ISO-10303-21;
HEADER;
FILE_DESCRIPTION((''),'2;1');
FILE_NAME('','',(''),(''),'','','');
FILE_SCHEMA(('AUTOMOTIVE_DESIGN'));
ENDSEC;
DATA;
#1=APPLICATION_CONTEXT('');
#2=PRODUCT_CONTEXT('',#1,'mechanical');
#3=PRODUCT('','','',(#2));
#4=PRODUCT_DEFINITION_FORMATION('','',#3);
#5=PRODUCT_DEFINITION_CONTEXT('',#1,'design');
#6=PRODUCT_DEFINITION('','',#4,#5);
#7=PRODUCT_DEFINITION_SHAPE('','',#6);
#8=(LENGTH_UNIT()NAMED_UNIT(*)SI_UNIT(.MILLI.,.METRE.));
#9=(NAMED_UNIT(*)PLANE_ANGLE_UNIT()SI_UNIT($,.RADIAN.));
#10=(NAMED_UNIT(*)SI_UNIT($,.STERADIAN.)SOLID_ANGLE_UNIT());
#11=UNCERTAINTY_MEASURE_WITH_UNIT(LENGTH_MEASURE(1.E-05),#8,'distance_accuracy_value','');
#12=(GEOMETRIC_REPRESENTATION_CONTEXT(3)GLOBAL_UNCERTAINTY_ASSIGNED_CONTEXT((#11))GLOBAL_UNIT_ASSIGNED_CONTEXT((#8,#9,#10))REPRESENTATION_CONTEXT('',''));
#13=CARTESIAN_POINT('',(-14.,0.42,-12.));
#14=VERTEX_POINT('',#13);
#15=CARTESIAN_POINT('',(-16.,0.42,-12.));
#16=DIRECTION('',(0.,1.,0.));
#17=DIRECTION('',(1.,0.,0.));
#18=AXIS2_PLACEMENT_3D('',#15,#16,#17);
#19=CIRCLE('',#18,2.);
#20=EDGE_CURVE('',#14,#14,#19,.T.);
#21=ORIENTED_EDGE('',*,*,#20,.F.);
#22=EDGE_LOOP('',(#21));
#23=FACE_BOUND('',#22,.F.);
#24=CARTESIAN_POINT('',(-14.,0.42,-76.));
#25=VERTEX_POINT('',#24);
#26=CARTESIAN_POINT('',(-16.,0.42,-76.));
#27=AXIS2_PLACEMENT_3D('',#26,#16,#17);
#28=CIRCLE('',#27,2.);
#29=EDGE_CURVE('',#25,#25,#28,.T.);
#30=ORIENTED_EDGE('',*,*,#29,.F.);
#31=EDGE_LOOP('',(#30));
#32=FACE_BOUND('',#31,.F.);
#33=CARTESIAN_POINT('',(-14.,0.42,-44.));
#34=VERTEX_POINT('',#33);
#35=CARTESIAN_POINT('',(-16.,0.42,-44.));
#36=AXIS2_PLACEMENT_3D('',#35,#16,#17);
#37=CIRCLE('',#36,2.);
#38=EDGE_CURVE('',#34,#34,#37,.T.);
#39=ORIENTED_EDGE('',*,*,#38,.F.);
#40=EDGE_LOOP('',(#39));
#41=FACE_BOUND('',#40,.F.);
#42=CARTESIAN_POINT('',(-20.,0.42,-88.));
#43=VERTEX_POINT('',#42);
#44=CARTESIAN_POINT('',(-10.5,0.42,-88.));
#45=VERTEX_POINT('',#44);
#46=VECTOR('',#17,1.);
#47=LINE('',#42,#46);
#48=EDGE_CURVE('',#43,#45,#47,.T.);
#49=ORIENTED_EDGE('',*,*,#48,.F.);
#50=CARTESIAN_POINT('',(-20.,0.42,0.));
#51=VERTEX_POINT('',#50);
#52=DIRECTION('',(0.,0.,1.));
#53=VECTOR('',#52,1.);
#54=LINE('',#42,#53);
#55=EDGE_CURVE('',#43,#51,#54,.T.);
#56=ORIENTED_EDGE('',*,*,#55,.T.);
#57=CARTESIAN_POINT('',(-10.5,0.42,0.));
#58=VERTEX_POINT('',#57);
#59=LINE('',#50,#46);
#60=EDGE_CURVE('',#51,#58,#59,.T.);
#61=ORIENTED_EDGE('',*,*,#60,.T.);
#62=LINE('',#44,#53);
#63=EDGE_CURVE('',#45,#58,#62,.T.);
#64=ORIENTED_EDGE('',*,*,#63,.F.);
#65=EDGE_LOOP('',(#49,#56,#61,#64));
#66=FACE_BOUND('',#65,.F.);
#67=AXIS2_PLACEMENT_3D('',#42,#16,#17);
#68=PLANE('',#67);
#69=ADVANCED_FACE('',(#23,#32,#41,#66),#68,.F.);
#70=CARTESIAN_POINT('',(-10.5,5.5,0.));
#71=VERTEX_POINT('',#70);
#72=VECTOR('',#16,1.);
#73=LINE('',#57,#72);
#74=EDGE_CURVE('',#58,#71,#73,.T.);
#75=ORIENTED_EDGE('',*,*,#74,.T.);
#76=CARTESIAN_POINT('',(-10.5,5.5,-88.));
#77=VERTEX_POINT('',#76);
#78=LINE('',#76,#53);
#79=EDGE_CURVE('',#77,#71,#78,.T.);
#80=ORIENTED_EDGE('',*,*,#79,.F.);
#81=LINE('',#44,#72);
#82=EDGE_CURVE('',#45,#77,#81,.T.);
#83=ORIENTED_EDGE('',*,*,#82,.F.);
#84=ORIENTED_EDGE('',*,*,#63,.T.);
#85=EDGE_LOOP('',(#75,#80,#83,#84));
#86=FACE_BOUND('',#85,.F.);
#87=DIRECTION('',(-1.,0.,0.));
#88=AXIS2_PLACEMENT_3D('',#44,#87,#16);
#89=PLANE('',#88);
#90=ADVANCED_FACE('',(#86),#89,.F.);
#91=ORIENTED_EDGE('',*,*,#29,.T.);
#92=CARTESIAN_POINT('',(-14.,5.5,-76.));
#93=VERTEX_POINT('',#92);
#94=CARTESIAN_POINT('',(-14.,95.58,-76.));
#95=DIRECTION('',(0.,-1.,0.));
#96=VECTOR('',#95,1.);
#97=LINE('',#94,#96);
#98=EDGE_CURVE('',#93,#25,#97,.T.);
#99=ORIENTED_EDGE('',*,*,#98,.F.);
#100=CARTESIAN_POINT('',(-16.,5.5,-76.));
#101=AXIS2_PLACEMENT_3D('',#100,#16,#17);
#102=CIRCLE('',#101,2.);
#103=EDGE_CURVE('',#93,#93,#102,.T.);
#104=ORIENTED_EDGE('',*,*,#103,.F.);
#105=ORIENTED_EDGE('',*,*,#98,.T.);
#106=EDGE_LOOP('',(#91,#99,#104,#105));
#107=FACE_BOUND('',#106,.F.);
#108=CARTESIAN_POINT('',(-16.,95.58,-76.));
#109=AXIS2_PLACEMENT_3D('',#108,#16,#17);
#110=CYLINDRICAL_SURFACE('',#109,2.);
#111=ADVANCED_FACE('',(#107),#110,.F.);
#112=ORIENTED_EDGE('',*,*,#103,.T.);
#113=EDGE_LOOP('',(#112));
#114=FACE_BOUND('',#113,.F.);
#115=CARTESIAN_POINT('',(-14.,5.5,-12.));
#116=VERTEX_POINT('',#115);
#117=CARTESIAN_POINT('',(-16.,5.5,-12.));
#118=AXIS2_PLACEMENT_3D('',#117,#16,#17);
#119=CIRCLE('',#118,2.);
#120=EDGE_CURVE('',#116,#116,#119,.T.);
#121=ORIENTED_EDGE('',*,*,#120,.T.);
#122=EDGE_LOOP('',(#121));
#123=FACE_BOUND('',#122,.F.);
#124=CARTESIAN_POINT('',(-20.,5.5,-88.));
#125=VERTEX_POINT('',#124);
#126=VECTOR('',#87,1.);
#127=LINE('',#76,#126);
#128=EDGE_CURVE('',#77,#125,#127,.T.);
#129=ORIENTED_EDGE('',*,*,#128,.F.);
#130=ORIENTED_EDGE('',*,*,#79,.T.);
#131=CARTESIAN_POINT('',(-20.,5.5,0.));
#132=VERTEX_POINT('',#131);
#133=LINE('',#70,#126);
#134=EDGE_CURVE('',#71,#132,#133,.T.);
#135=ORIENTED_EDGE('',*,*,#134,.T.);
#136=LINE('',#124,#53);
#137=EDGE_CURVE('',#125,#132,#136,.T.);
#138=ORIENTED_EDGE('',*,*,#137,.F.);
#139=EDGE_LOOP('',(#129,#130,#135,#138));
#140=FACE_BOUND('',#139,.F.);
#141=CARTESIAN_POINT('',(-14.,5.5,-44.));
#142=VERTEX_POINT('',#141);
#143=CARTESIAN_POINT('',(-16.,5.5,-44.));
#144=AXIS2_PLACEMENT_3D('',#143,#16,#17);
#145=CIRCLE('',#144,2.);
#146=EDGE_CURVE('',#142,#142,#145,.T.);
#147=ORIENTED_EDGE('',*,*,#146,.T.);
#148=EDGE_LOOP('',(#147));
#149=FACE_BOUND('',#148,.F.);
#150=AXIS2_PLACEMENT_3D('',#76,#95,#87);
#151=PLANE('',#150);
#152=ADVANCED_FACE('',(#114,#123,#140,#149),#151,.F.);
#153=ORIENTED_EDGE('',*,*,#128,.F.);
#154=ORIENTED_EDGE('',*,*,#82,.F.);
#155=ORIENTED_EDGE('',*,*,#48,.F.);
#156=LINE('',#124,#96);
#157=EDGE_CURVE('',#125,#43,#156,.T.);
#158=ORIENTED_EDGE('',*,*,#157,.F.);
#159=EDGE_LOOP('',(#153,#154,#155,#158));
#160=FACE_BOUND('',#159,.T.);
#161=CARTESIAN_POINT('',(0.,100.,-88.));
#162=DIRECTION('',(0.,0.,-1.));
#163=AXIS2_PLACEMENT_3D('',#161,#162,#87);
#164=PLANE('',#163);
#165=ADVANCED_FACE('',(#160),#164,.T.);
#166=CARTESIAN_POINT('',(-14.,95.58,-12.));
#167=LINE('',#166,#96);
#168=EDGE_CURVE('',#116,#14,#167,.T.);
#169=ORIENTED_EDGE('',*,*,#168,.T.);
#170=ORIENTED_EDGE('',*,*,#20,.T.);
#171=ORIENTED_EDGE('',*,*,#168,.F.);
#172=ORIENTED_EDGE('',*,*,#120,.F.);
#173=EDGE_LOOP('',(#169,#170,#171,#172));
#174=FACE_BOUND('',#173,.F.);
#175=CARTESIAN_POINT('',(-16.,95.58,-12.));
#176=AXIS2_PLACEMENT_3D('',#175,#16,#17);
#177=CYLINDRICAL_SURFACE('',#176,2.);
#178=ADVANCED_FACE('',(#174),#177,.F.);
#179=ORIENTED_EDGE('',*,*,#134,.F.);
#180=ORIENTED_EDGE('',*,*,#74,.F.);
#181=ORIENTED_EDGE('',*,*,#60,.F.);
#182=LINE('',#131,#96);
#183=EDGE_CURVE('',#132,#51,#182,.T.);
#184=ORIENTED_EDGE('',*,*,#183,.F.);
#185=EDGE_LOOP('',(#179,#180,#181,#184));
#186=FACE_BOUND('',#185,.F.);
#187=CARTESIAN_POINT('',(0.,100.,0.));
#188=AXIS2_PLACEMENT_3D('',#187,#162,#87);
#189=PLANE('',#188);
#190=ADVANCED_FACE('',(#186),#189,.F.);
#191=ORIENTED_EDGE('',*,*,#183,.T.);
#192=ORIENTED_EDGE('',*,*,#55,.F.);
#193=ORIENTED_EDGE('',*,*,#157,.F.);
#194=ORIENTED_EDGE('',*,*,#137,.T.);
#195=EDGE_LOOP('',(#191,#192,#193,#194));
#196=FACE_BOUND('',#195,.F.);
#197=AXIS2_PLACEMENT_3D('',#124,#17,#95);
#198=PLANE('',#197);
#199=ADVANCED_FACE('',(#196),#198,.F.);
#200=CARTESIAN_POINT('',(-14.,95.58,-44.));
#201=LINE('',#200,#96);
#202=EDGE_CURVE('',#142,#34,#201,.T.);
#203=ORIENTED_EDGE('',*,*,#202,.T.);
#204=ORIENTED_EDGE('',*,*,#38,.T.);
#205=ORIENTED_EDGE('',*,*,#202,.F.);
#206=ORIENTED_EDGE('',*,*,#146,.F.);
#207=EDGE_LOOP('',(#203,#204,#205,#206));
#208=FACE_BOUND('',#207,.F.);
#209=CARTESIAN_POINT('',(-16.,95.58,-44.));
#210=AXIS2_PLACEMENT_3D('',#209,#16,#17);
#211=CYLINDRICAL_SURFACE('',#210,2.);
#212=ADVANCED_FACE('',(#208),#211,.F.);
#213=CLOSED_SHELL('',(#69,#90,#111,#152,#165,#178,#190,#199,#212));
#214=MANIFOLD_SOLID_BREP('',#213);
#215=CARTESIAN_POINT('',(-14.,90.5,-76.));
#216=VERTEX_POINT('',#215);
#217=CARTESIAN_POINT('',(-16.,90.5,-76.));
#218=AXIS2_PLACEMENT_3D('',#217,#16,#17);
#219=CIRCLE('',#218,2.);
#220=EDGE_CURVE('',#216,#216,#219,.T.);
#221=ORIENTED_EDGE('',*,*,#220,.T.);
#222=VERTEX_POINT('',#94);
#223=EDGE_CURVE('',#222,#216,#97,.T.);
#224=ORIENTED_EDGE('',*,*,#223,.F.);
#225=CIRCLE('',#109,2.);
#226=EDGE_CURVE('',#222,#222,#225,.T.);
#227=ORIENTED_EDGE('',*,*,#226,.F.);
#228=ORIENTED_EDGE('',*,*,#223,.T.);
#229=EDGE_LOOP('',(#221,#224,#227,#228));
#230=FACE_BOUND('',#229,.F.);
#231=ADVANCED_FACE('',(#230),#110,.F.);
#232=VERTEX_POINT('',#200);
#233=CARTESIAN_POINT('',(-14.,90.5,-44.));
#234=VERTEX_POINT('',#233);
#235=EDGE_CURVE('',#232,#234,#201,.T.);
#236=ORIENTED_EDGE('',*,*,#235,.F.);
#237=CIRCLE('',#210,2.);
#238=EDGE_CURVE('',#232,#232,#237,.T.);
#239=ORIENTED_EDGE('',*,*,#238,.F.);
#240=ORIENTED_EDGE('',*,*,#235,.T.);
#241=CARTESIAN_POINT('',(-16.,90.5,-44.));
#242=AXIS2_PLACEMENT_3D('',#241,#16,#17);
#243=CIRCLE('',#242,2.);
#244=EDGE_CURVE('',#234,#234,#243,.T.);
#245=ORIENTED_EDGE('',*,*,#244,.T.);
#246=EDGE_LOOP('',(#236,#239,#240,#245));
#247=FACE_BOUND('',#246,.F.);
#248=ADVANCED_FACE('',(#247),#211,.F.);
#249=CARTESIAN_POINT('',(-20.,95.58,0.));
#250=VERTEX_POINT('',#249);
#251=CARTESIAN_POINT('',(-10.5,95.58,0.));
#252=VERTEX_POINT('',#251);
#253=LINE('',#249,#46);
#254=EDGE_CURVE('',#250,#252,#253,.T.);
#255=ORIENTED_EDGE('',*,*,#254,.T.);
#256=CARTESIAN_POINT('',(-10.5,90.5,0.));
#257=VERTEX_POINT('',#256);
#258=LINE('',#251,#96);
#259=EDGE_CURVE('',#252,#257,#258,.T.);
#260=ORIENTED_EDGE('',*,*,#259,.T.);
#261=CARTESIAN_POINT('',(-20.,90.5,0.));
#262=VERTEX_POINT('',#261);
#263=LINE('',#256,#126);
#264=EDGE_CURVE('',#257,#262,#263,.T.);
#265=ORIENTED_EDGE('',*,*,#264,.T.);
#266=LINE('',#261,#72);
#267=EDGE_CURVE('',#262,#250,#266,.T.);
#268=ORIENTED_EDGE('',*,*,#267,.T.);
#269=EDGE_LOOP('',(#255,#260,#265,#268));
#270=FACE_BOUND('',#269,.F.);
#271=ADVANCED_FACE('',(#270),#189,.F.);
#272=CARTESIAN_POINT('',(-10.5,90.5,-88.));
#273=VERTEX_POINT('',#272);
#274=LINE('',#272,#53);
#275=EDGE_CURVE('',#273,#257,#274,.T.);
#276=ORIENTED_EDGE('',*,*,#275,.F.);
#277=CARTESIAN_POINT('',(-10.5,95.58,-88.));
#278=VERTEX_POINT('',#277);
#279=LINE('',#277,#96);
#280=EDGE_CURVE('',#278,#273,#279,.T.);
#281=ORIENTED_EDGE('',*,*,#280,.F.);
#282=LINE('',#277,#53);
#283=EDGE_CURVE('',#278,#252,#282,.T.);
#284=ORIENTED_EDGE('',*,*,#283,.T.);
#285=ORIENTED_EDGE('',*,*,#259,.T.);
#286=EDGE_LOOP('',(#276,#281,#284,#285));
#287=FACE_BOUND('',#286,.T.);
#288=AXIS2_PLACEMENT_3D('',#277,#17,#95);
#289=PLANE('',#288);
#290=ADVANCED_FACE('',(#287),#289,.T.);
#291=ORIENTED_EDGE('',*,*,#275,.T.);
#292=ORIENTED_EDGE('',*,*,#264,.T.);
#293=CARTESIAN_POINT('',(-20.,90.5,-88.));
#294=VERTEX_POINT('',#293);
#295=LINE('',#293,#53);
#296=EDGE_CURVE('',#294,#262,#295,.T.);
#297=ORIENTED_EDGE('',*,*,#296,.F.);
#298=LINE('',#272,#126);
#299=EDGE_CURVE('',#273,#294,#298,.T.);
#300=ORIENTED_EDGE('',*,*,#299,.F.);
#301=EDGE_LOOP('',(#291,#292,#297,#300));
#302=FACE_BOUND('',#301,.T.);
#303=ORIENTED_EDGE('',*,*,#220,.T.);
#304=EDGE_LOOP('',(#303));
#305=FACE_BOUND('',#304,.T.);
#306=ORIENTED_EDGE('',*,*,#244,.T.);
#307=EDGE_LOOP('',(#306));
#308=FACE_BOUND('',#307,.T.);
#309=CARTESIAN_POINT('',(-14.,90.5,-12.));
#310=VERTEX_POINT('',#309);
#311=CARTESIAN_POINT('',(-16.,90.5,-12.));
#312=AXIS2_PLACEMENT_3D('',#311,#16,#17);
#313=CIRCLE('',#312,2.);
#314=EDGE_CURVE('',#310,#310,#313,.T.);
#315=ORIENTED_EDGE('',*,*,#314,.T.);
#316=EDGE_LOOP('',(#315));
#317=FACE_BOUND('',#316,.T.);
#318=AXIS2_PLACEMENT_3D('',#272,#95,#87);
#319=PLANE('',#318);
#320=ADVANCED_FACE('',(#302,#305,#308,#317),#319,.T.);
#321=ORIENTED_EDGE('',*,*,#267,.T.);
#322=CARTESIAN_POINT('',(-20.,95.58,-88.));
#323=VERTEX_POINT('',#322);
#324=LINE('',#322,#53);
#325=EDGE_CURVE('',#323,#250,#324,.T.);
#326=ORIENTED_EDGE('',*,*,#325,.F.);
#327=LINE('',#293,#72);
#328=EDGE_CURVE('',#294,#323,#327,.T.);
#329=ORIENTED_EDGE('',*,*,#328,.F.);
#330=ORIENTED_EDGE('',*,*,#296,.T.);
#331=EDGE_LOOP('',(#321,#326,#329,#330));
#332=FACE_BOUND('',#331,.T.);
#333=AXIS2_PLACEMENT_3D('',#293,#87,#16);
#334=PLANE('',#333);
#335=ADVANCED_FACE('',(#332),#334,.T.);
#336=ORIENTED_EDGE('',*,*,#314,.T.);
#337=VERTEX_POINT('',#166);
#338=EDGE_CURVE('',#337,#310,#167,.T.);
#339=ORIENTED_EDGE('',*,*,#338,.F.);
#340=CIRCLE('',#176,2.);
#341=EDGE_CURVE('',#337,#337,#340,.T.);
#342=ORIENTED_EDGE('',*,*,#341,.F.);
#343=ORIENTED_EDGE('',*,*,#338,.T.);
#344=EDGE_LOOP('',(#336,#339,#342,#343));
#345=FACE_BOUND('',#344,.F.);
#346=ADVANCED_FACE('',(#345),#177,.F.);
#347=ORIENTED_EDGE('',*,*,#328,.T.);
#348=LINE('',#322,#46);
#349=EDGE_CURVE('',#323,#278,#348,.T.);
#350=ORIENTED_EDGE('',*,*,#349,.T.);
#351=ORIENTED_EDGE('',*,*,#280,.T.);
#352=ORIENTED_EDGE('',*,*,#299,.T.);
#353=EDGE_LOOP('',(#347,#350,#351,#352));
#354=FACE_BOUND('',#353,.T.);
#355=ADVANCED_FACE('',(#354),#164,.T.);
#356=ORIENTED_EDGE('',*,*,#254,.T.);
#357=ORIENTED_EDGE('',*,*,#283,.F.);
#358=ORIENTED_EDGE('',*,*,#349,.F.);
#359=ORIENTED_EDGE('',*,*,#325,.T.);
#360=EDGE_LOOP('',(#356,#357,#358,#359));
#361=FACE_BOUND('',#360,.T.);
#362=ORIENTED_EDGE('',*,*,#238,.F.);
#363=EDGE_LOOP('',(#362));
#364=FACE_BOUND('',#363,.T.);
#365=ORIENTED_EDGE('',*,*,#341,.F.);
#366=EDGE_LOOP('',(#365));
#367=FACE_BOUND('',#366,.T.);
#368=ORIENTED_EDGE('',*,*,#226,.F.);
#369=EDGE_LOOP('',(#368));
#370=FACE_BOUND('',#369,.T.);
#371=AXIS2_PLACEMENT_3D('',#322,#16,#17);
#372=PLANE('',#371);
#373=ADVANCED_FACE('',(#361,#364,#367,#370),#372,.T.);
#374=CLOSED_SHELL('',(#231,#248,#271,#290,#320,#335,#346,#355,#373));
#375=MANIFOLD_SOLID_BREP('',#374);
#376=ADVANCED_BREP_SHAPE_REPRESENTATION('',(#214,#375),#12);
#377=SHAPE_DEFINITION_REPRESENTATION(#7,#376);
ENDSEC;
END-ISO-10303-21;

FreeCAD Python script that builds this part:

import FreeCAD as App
import Part
import Sketcher
from FreeCAD import Vector
Q = App.Units.Quantity


def add_polygon(sketch, points):
    """Adds a closed chain of lines whose ends are joined by coincident constraints."""
    first, n = sketch.GeometryCount, len(points)
    for a, b in zip(points, points[1:] + points[:1]):
        sketch.addGeometry(Part.LineSegment(App.Vector(*a, 0), App.Vector(*b, 0)), False)
    for i in range(n):
        sketch.addConstraint(Sketcher.Constraint("Coincident", first + i, 2, first + (i + 1) % n, 1))

doc = App.newDocument("Part")
body = doc.addObject("PartDesign::Body", "Body")
body.AllowCompound = True

# Sketch on XY plane
sketch1 = doc.addObject("Sketcher::SketchObject", "Sketch")
body.addObject(sketch1)
sketch1.AttachmentSupport = (doc.XY_Plane, [""])
sketch1.MapMode = "FlatFace"
sketch1.AttachmentOffset = App.Placement(Vector(0, 0, -88), App.Rotation())
add_polygon(sketch1, [(-20, 6), (-10, 6), (-10, 0), (-20, 0)])  # lines 0-3
add_polygon(sketch1, [(-10, 96), (-10, 90), (-20, 90), (-20, 96)])  # lines 4-7
sketch1.addConstraint([
    Sketcher.Constraint("Horizontal", 0),
    Sketcher.Constraint("Vertical", 1),
    Sketcher.Constraint("Horizontal", 2),
    Sketcher.Constraint("Vertical", 3),
    Sketcher.Constraint("Vertical", 4),
    Sketcher.Constraint("Horizontal", 5),
    Sketcher.Constraint("Vertical", 6),
    Sketcher.Constraint("Horizontal", 7),
    Sketcher.Constraint("Vertical", 1, 2, 4, 2),
    Sketcher.Constraint("Vertical", 3, 2, 5, 2),
    Sketcher.Constraint("Equal", 3, 4),
    Sketcher.Constraint("DistanceY", 1, 2, 1, 1, Q("5.08 mm")),
    Sketcher.Constraint("DistanceX", 0, 1, 0, 2, Q("9.5 mm")),
    Sketcher.Constraint("DistanceX", 2, 2, -1, 1, Q("20 mm")),
    Sketcher.Constraint("DistanceY", 0, 2, 4, 2, Q("85 mm")),
    Sketcher.Constraint("DistanceY", -1, 1, 0, 2, Q("5.5 mm")),
])
pad1 = doc.addObject("PartDesign::Pad", "Pad")
body.addObject(pad1)
pad1.Profile = sketch1
pad1.Length = 88

# Sketch on XZ plane
sketch2 = doc.addObject("Sketcher::SketchObject", "Sketch001")
body.addObject(sketch2)
sketch2.AttachmentSupport = (doc.XZ_Plane, [""])
sketch2.MapMode = "FlatFace"
sketch2.AttachmentOffset = App.Placement(Vector(0, 0, -95.58), App.Rotation())
sketch2.addGeometry([
    Part.Circle(Vector(-16, -12, 0), Vector(0, 0, 1), 2),
    Part.Circle(Vector(-16, -76, 0), Vector(0, 0, 1), 2),
    Part.Circle(Vector(-16, -44, 0), Vector(0, 0, 1), 2),
], False)
sketch2.addConstraint([
    Sketcher.Constraint("Equal", 0, 1),
    Sketcher.Constraint("Equal", 1, 2),
    Sketcher.Constraint("Vertical", 0, 3, 1, 3),
    Sketcher.Constraint("Vertical", 1, 3, 2, 3),
    Sketcher.Constraint("Diameter", 0, Q("4 mm")),
    Sketcher.Constraint("DistanceX", 0, 3, -1, 1, Q("16 mm")),
    Sketcher.Constraint("DistanceY", 0, 3, -1, 1, Q("12 mm")),
    Sketcher.Constraint("DistanceY", 1, 3, -1, 1, Q("76 mm")),
    Sketcher.Constraint("DistanceY", 2, 3, -1, 1, Q("44 mm")),
])
pocket1 = doc.addObject("PartDesign::Pocket", "Pocket")
body.addObject(pocket1)
pocket1.Profile = sketch2
pocket1.Type = "ThroughAll"
pocket1.Reversed = True

doc.recompute()
